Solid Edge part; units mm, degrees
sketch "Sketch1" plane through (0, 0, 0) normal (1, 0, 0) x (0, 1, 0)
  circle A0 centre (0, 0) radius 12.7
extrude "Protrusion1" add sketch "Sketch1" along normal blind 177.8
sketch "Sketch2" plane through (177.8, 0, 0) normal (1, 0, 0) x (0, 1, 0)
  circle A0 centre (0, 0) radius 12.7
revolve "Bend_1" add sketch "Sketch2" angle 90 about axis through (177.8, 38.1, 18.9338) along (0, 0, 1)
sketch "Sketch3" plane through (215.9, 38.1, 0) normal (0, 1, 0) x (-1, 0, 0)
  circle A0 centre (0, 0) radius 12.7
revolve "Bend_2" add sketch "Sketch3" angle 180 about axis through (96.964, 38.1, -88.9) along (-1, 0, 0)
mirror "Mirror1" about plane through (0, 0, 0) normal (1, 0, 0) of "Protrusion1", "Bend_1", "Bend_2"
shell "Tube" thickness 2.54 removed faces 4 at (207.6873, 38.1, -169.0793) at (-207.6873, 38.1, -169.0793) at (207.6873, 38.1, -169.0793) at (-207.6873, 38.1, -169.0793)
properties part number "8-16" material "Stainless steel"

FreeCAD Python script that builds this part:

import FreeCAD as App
import Part
import Sketcher

V = App.Vector
Q = App.Units.Quantity


def faces_at(feature, points):
    """Names of the faces that lie closest to the given points."""
    faces = feature.Shape.Faces
    near = lambda p: min(range(len(faces)), key=lambda i: faces[i].distToShape(Part.Vertex(*p))[0])
    return sorted({f"Face{near(p) + 1}" for p in points})

doc = App.newDocument("Part")
params = doc.addObject("Spreadsheet::Sheet", "Params")
for row, (alias, value) in enumerate([
    ("sketch1_diameter", "1 in"),
    ("pad1_length", "7 in"),
    ("sketch2_diameter", "1 in"),
    ("revolution_angle", "90 deg"),
    ("sketch3_diameter", "1 in"),
    ("revolution2_angle", "180 deg"),
    ("thickness_wall", "0.1 in"),
], start=1):
    params.set(f"A{row}", alias)
    params.set(f"B{row}", "=" + value)
    params.setAlias(f"B{row}", alias)

body = doc.addObject("PartDesign::Body", "Body")

# Sketch on YZ plane
sketch1 = body.newObject("Sketcher::SketchObject", "Sketch")
sketch1.AttachmentSupport = (doc.getObject("YZ_Plane"), [""])
sketch1.MapMode = "FlatFace"
sketch1.addGeometry(Part.Circle(V(0, 0, 0), V(0, 0, 1), 13), False)
sketch1.addConstraint(Sketcher.Constraint("Coincident", 0, 3, -1, 1))
sketch1.addConstraint(Sketcher.Constraint("Diameter", 0, Q("1 in")))
sketch1.setExpression("Constraints[1]", "Params.sketch1_diameter")
pad1 = body.newObject("PartDesign::Pad", "Pad")
pad1.Profile = sketch1
pad1.setExpression("Length", "Params.pad1_length")

# Sketch on YZ plane
sketch2 = body.newObject("Sketcher::SketchObject", "Sketch001")
sketch2.AttachmentSupport = (doc.getObject("YZ_Plane"), [""])
sketch2.MapMode = "FlatFace"
sketch2.AttachmentOffset = App.Placement(V(0, 0, 7 * 25.4), App.Rotation())
sketch2.addGeometry(Part.Circle(V(0, 0, 0), V(0, 0, 1), 13), False)
sketch2.addGeometry(Part.LineSegment(V(38, 0, 0), V(38, 10, 0)), True)  # axis
sketch2.addConstraint(Sketcher.Constraint("Vertical", 1))
sketch2.addConstraint(Sketcher.Constraint("Coincident", 0, 3, -1, 1))
sketch2.addConstraint(Sketcher.Constraint("PointOnObject", 1, 1, -1))
sketch2.addConstraint(Sketcher.Constraint("Diameter", 0, Q("1 in")))
sketch2.addConstraint(Sketcher.Constraint("DistanceX", -1, 1, 1, 1, Q("1.5 in")))
sketch2.addConstraint(Sketcher.Constraint("DistanceY", 1, 1, 1, 2, Q("0.3937 in")))
sketch2.setExpression("Constraints[3]", "Params.sketch2_diameter")
revolution = body.newObject("PartDesign::Revolution", "Revolution")
revolution.Profile = sketch2
revolution.ReferenceAxis = (sketch2, ["Axis0"])
revolution.setExpression("Angle", "Params.revolution_angle")

# Sketch on XZ plane
sketch3 = body.newObject("Sketcher::SketchObject", "Sketch002")
sketch3.AttachmentSupport = (doc.getObject("XZ_Plane"), [""])
sketch3.MapMode = "FlatFace"
sketch3.AttachmentOffset = App.Placement(V(0, 0, -1.5 * 25.4), App.Rotation())
sketch3.addGeometry(Part.Circle(V(216, 0, 0), V(0, 0, 1), 13), False)
sketch3.addGeometry(Part.LineSegment(V(216, -89, 0), V(206, -89, 0)), True)  # axis
sketch3.addConstraint(Sketcher.Constraint("Horizontal", 1))
sketch3.addConstraint(Sketcher.Constraint("PointOnObject", 0, 3, -1))
sketch3.addConstraint(Sketcher.Constraint("Vertical", 0, 3, 1, 1))
sketch3.addConstraint(Sketcher.Constraint("Diameter", 0, Q("1 in")))
sketch3.addConstraint(Sketcher.Constraint("DistanceX", -1, 1, 0, 3, Q("8.5 in")))
sketch3.addConstraint(Sketcher.Constraint("DistanceY", 1, 1, -1, 1, Q("3.5 in")))
sketch3.addConstraint(Sketcher.Constraint("DistanceX", 1, 2, 1, 1, Q("0.3937 in")))
sketch3.setExpression("Constraints[3]", "Params.sketch3_diameter")
revolution2 = body.newObject("PartDesign::Revolution", "Revolution001")
revolution2.Profile = sketch3
revolution2.ReferenceAxis = (sketch3, ["Axis0"])
revolution2.setExpression("Angle", "Params.revolution2_angle")
doc.recompute()

mirrored = body.newObject("PartDesign::Mirrored", "Mirrored")
mirrored.Originals = [pad1, revolution, revolution2]
mirrored.MirrorPlane = (doc.getObject("YZ_Plane"), [""])
body.Tip = mirrored
doc.recompute()

thickness = body.newObject("PartDesign::Thickness", "Thickness")
thickness.Base = (mirrored, faces_at(mirrored, [
    (207.687, 38.1, -169.079),
    (-207.687, 38.1, -169.079),
    (207.687, 38.1, -169.079),
    (-207.687, 38.1, -169.079),
]))
thickness.setExpression("Value", "Params.thickness_wall")
thickness.Reversed = True
thickness.Join = "Intersection"

doc.recompute()
